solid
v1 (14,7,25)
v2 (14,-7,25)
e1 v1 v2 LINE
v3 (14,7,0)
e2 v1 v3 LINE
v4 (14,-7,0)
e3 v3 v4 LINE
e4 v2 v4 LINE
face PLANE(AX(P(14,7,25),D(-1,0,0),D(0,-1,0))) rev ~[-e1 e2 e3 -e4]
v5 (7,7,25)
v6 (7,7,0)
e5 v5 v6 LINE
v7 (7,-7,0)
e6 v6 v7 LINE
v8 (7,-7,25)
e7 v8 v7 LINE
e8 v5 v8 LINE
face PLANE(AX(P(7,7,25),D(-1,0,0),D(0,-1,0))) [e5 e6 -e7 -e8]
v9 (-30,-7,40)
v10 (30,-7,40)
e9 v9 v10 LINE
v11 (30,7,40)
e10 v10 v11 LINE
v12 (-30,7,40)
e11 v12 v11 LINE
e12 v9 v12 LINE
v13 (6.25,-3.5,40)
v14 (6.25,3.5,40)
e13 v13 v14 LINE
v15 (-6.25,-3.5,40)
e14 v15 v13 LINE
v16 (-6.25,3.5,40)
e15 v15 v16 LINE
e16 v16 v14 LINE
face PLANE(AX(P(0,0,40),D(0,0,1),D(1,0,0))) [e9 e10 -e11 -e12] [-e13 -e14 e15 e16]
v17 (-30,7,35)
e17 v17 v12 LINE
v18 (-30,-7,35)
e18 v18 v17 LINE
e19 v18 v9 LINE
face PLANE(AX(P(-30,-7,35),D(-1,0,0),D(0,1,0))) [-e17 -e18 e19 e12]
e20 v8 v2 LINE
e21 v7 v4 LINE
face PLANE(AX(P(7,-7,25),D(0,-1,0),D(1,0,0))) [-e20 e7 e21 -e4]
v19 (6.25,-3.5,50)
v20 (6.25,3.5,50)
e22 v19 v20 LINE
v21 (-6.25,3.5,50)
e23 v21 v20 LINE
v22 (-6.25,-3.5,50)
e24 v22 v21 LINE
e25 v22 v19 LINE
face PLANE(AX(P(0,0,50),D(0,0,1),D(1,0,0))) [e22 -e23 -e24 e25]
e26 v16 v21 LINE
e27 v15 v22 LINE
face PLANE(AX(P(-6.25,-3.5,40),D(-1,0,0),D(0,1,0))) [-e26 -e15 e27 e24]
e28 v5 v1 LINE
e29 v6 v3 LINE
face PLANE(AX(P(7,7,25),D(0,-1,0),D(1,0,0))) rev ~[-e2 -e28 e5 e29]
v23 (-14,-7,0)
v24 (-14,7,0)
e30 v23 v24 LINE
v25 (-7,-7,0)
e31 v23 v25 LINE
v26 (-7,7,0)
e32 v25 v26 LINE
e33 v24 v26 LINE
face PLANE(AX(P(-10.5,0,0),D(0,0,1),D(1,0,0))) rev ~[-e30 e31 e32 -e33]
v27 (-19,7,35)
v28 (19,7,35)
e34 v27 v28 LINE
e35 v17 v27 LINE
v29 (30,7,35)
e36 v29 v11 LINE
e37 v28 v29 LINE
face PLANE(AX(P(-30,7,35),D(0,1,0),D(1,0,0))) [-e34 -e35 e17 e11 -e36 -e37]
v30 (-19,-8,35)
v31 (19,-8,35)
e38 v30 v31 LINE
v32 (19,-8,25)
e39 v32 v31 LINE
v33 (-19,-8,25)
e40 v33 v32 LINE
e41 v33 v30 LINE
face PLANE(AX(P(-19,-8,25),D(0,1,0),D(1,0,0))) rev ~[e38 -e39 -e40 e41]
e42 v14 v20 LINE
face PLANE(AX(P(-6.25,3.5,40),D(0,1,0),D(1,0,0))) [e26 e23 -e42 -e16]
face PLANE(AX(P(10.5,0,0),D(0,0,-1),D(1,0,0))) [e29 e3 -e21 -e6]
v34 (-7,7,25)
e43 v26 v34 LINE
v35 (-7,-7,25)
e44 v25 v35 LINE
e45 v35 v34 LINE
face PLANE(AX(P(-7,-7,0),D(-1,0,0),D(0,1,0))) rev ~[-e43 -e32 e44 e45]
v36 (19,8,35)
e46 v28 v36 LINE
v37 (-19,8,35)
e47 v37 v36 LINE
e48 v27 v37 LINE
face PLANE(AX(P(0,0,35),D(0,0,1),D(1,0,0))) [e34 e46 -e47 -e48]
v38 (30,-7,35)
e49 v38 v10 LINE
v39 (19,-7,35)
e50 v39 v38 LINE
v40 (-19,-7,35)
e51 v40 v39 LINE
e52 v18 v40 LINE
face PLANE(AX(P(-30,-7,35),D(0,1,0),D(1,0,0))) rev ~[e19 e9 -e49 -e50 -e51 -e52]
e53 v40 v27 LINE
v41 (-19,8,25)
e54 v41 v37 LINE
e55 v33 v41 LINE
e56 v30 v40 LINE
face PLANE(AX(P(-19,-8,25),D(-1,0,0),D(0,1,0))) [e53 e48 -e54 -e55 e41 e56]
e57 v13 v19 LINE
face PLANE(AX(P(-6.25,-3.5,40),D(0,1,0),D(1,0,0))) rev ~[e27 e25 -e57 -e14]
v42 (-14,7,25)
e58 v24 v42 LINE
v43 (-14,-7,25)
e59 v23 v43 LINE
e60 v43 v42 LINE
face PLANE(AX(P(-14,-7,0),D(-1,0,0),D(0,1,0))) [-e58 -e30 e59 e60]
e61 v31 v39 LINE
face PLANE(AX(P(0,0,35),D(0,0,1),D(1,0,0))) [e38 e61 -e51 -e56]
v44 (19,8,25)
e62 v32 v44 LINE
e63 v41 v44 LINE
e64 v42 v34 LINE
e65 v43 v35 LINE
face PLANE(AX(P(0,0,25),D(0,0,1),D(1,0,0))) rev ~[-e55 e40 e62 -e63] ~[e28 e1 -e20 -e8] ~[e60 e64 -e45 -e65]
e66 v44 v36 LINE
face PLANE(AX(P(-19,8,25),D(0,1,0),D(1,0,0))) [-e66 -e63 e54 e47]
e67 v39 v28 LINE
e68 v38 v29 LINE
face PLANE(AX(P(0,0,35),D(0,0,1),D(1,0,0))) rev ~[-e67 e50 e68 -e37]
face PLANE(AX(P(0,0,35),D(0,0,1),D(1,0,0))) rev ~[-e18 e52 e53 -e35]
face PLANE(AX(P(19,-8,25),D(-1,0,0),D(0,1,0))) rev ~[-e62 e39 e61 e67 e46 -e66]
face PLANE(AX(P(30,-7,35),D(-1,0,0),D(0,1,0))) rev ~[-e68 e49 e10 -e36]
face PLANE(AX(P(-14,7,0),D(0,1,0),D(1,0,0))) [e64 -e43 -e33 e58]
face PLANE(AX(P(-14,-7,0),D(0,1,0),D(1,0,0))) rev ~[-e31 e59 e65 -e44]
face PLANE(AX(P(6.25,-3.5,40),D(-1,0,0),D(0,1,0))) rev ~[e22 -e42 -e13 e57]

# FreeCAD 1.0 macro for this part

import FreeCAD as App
import Part
import Sketcher
from FreeCAD import Vector


def add_polygon(sketch, points):
    """Adds a closed chain of lines whose ends are joined by coincident constraints."""
    first, n = sketch.GeometryCount, len(points)
    for a, b in zip(points, points[1:] + points[:1]):
        sketch.addGeometry(Part.LineSegment(App.Vector(*a, 0), App.Vector(*b, 0)), False)
    for i in range(n):
        sketch.addConstraint(Sketcher.Constraint("Coincident", first + i, 2, first + (i + 1) % n, 1))

doc = App.newDocument("Part")
params = doc.addObject("Spreadsheet::Sheet", "Params")
for row, (alias, value) in enumerate([
    ("sketch1_width", "7 mm"),
    ("sketch1_height", "14 mm"),
    ("pad1_length", "25 mm"),
    ("sketch2_width", "38 mm"),
    ("sketch2_height", "16 mm"),
    ("pad2_length", "10 mm"),
    ("sketch3_width", "60 mm"),
    ("sketch3_height", "14 mm"),
    ("pad3_length", "5 mm"),
    ("sketch4_height", "7 mm"),
    ("sketch4_width", "12.5 mm"),
    ("pad4_length", "10 mm"),
    ("sketch5_width", "7 mm"),
    ("sketch5_height", "14 mm"),
    ("pad5_length", "25 mm"),
], start=1):
    params.set(f"A{row}", alias)
    params.set(f"B{row}", "=" + value)
    params.setAlias(f"B{row}", alias)

body = doc.addObject("PartDesign::Body", "Body")

# Sketch on XY plane
sketch1 = body.newObject("Sketcher::SketchObject", "Sketch")
sketch1.AttachmentSupport = (doc.getObject("XY_Plane"), [""])
sketch1.MapMode = "FlatFace"
add_polygon(sketch1, [(-14, 7), (-14, -7), (-7, -7), (-7, 7)])  # lines 0-3
sketch1.addConstraint(Sketcher.Constraint("Vertical", 0))
sketch1.addConstraint(Sketcher.Constraint("Horizontal", 1))
sketch1.addConstraint(Sketcher.Constraint("Vertical", 2))
sketch1.addConstraint(Sketcher.Constraint("Horizontal", 3))
sketch1.addConstraint(Sketcher.Constraint("DistanceX", 1, 1, 1, 2, 7.0))
sketch1.addConstraint(Sketcher.Constraint("DistanceY", 0, 2, 0, 1, 14.0))
sketch1.addConstraint(Sketcher.Constraint("DistanceX", 0, 2, -1, 1, 14.0))
sketch1.addConstraint(Sketcher.Constraint("DistanceY", 0, 2, -1, 1, 7.0))
sketch1.setExpression("Constraints[8]", "Params.sketch1_width")
sketch1.setExpression("Constraints[9]", "Params.sketch1_height")
pad1 = body.newObject("PartDesign::Pad", "Pad")
pad1.Profile = sketch1
pad1.setExpression("Length", "Params.pad1_length")

# Sketch on XY plane
sketch2 = body.newObject("Sketcher::SketchObject", "Sketch001")
sketch2.AttachmentSupport = (doc.getObject("XY_Plane"), [""])
sketch2.MapMode = "FlatFace"
sketch2.AttachmentOffset = App.Placement(Vector(0, 0, 25), App.Rotation())
add_polygon(sketch2, [(-19, 8), (-19, -8), (19, -8), (19, 8)])  # lines 0-3
sketch2.addConstraint(Sketcher.Constraint("Vertical", 0))
sketch2.addConstraint(Sketcher.Constraint("Horizontal", 1))
sketch2.addConstraint(Sketcher.Constraint("Vertical", 2))
sketch2.addConstraint(Sketcher.Constraint("Horizontal", 3))
sketch2.addConstraint(Sketcher.Constraint("Symmetric", 0, 2, 2, 2, -1, 1))
sketch2.addConstraint(Sketcher.Constraint("DistanceX", 1, 1, 1, 2, 38.0))
sketch2.addConstraint(Sketcher.Constraint("DistanceY", 0, 2, 0, 1, 16.0))
sketch2.setExpression("Constraints[9]", "Params.sketch2_width")
sketch2.setExpression("Constraints[10]", "Params.sketch2_height")
pad2 = body.newObject("PartDesign::Pad", "Pad001")
pad2.Profile = sketch2
pad2.setExpression("Length", "Params.pad2_length")

# Sketch on XY plane
sketch3 = body.newObject("Sketcher::SketchObject", "Sketch002")
sketch3.AttachmentSupport = (doc.getObject("XY_Plane"), [""])
sketch3.MapMode = "FlatFace"
sketch3.AttachmentOffset = App.Placement(Vector(0, 0, 35), App.Rotation())
add_polygon(sketch3, [(-30, 7), (-30, -7), (30, -7), (30, 7)])  # lines 0-3
sketch3.addConstraint(Sketcher.Constraint("Vertical", 0))
sketch3.addConstraint(Sketcher.Constraint("Horizontal", 1))
sketch3.addConstraint(Sketcher.Constraint("Vertical", 2))
sketch3.addConstraint(Sketcher.Constraint("Horizontal", 3))
sketch3.addConstraint(Sketcher.Constraint("Symmetric", 0, 2, 2, 2, -1, 1))
sketch3.addConstraint(Sketcher.Constraint("DistanceX", 1, 1, 1, 2, 60.0))
sketch3.addConstraint(Sketcher.Constraint("DistanceY", 0, 2, 0, 1, 14.0))
sketch3.setExpression("Constraints[9]", "Params.sketch3_width")
sketch3.setExpression("Constraints[10]", "Params.sketch3_height")
pad3 = body.newObject("PartDesign::Pad", "Pad002")
pad3.Profile = sketch3
pad3.setExpression("Length", "Params.pad3_length")

# Sketch on XY plane
sketch4 = body.newObject("Sketcher::SketchObject", "Sketch003")
sketch4.AttachmentSupport = (doc.getObject("XY_Plane"), [""])
sketch4.MapMode = "FlatFace"
sketch4.AttachmentOffset = App.Placement(Vector(0, 0, 40), App.Rotation())
add_polygon(sketch4, [(-6, 4), (-6, -4), (6, -4), (6, 4)])  # lines 0-3
sketch4.addConstraint(Sketcher.Constraint("Vertical", 0))
sketch4.addConstraint(Sketcher.Constraint("Horizontal", 1))
sketch4.addConstraint(Sketcher.Constraint("Vertical", 2))
sketch4.addConstraint(Sketcher.Constraint("Horizontal", 3))
sketch4.addConstraint(Sketcher.Constraint("Symmetric", 0, 2, 2, 2, -1, 1))
sketch4.addConstraint(Sketcher.Constraint("DistanceY", 0, 2, 0, 1, 7.0))
sketch4.addConstraint(Sketcher.Constraint("DistanceX", 1, 1, 1, 2, 12.5))
sketch4.setExpression("Constraints[9]", "Params.sketch4_height")
sketch4.setExpression("Constraints[10]", "Params.sketch4_width")
pad4 = body.newObject("PartDesign::Pad", "Pad003")
pad4.Profile = sketch4
pad4.setExpression("Length", "Params.pad4_length")

# Sketch on XY plane
sketch5 = body.newObject("Sketcher::SketchObject", "Sketch004")
sketch5.AttachmentSupport = (doc.getObject("XY_Plane"), [""])
sketch5.MapMode = "FlatFace"
sketch5.AttachmentOffset = App.Placement(Vector(0, 0, 25), App.Rotation())
add_polygon(sketch5, [(7, -7), (7, 7), (14, 7), (14, -7)])  # lines 0-3
sketch5.addConstraint(Sketcher.Constraint("Vertical", 0))
sketch5.addConstraint(Sketcher.Constraint("Horizontal", 1))
sketch5.addConstraint(Sketcher.Constraint("Vertical", 2))
sketch5.addConstraint(Sketcher.Constraint("Horizontal", 3))
sketch5.addConstraint(Sketcher.Constraint("DistanceX", 1, 1, 1, 2, 7.0))
sketch5.addConstraint(Sketcher.Constraint("DistanceY", 0, 1, 0, 2, 14.0))
sketch5.addConstraint(Sketcher.Constraint("DistanceX", -1, 1, 0, 2, 7.0))
sketch5.addConstraint(Sketcher.Constraint("DistanceY", -1, 1, 0, 2, 7.0))
sketch5.setExpression("Constraints[8]", "Params.sketch5_width")
sketch5.setExpression("Constraints[9]", "Params.sketch5_height")
pad5 = body.newObject("PartDesign::Pad", "Pad004")
pad5.Profile = sketch5
pad5.setExpression("Length", "Params.pad5_length")
pad5.Reversed = True

doc.recompute()
